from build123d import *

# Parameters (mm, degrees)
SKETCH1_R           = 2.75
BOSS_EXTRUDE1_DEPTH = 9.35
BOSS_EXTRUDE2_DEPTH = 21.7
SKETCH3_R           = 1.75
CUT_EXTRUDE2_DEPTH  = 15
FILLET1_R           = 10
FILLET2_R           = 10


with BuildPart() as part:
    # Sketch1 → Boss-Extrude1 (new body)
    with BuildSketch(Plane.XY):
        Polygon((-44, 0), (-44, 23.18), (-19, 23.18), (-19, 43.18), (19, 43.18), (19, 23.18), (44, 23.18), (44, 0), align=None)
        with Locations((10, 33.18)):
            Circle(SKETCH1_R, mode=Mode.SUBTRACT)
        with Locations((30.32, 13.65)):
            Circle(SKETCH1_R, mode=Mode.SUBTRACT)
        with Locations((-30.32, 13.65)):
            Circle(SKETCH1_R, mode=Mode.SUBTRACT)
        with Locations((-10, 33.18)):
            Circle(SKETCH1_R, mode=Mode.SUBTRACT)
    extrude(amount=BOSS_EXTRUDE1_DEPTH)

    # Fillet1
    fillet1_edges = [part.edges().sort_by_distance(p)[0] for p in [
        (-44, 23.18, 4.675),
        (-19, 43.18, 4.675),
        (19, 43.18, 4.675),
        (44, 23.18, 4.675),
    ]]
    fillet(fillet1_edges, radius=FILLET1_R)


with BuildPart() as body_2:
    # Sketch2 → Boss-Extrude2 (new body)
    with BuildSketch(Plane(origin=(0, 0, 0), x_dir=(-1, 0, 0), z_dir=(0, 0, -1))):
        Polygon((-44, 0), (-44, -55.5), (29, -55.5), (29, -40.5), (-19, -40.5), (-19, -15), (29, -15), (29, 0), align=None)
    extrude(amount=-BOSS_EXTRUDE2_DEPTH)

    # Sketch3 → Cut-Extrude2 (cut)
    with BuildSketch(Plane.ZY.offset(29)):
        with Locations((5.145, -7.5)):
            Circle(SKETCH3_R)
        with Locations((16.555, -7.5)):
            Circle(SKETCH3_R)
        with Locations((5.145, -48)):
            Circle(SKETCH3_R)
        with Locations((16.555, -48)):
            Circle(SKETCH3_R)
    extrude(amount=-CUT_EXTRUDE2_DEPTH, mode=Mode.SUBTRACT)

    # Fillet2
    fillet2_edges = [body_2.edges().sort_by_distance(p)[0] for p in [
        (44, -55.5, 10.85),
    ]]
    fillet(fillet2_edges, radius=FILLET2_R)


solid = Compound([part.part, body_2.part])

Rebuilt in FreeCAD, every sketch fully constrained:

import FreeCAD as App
import Part
import Sketcher

V = App.Vector
Q = App.Units.Quantity


def edges_at(feature, points):
    """Names of the edges that pass closest to the given points."""
    edges = feature.Shape.Edges
    near = lambda p: min(range(len(edges)), key=lambda i: edges[i].distToShape(Part.Vertex(*p))[0])
    return sorted({f"Edge{near(p) + 1}" for p in points})


def add_polygon(sketch, points):
    """Adds a closed chain of lines whose ends are joined by coincident constraints."""
    first, n = sketch.GeometryCount, len(points)
    for a, b in zip(points, points[1:] + points[:1]):
        sketch.addGeometry(Part.LineSegment(App.Vector(*a, 0), App.Vector(*b, 0)), False)
    for i in range(n):
        sketch.addConstraint(Sketcher.Constraint("Coincident", first + i, 2, first + (i + 1) % n, 1))

doc = App.newDocument("Part")
body = doc.addObject("PartDesign::Body", "Body")

# Sketch on XY plane
sketch1 = doc.addObject("Sketcher::SketchObject", "Sketch")
body.addObject(sketch1)
sketch1.AttachmentSupport = (doc.XY_Plane, [""])
sketch1.MapMode = "FlatFace"
add_polygon(sketch1, [(-44, 23.18), (-44, 0), (44, 0), (44, 23.18), (19, 23.18), (19, 43.18), (-19, 43.18), (-19, 23.18)])  # lines 0-7
sketch1.addGeometry(Part.Circle(V(30.32, 13.65, 0), V(0, 0, 1), 2.75), False)  # 8
sketch1.addGeometry(Part.Circle(V(-30.32, 13.65, 0), V(0, 0, 1), 2.75), False)  # 9
sketch1.addGeometry(Part.Circle(V(10, 33.18, 0), V(0, 0, 1), 2.75), False)  # 10
sketch1.addGeometry(Part.Circle(V(-10, 33.18, 0), V(0, 0, 1), 2.75), False)  # 11
sketch1.addConstraint([
    Sketcher.Constraint("Vertical", 0),
    Sketcher.Constraint("Horizontal", 1),
    Sketcher.Constraint("Vertical", 2),
    Sketcher.Constraint("Horizontal", 3),
    Sketcher.Constraint("Vertical", 4),
    Sketcher.Constraint("Horizontal", 5),
    Sketcher.Constraint("Vertical", 6),
    Sketcher.Constraint("Horizontal", 7),
    Sketcher.Constraint("Equal", 8, 9),
    Sketcher.Constraint("Equal", 9, 10),
    Sketcher.Constraint("Equal", 10, 11),
    Sketcher.Constraint("Symmetric", 0, 2, 1, 2, -1, 1),
    Sketcher.Constraint("Symmetric", 8, 3, 9, 3, -2),
    Sketcher.Constraint("Symmetric", 10, 3, 11, 3, -2),
    Sketcher.Constraint("Symmetric", 3, 2, 6, 2, -2),
    Sketcher.Constraint("Diameter", 8, Q("5.5 mm")),
    Sketcher.Constraint("DistanceX", 1, 1, 1, 2, Q("88 mm")),
    Sketcher.Constraint("DistanceX", 3, 2, 3, 1, Q("25 mm")),
    Sketcher.Constraint("DistanceY", 4, 1, 4, 2, Q("20 mm")),
    Sketcher.Constraint("DistanceX", -1, 1, 10, 3, Q("10 mm")),
    Sketcher.Constraint("DistanceY", 2, 2, 10, 3, Q("10 mm")),
    Sketcher.Constraint("DistanceY", 0, 2, 0, 1, Q("23.18 mm")),
    Sketcher.Constraint("DistanceX", -1, 1, 8, 3, Q("30.32 mm")),
    Sketcher.Constraint("DistanceY", -1, 1, 8, 3, Q("13.65 mm")),
])
pad1 = doc.addObject("PartDesign::Pad", "Pad")
body.addObject(pad1)
pad1.Profile = sketch1
pad1.Length = 9.35
doc.recompute()

fillet = doc.addObject("PartDesign::Fillet", "Fillet")
body.addObject(fillet)
fillet.Base = (pad1, edges_at(pad1, [
    (-44, 23.18, 4.675),
    (-19, 43.18, 4.675),
    (19, 43.18, 4.675),
    (44, 23.18, 4.675),
]))
fillet.Radius = 10
body2 = doc.addObject("PartDesign::Body", "Body001")

# Sketch on XY plane
sketch2 = doc.addObject("Sketcher::SketchObject", "Sketch001")
body2.addObject(sketch2)
sketch2.AttachmentSupport = (doc.getObject("XY_Plane001"), [""])
sketch2.MapMode = "FlatFace"
add_polygon(sketch2, [(44, 0), (44, -55.5), (-29, -55.5), (-29, -40.5), (19, -40.5), (19, -15), (-29, -15), (-29, 0)])  # lines 0-7
sketch2.addConstraint([
    Sketcher.Constraint("Vertical", 0),
    Sketcher.Constraint("Horizontal", 1),
    Sketcher.Constraint("Vertical", 2),
    Sketcher.Constraint("Horizontal", 3),
    Sketcher.Constraint("Vertical", 4),
    Sketcher.Constraint("Horizontal", 5),
    Sketcher.Constraint("Vertical", 6),
    Sketcher.Constraint("Horizontal", 7),
    Sketcher.Constraint("PointOnObject", 6, 2, -1),
    Sketcher.Constraint("Vertical", 2, 2, 5, 2),
    Sketcher.Constraint("Equal", 2, 6),
    Sketcher.Constraint("DistanceX", 1, 2, 1, 1, Q("73 mm")),
    Sketcher.Constraint("DistanceX", 3, 1, 3, 2, Q("48 mm")),
    Sketcher.Constraint("DistanceY", 2, 1, 2, 2, Q("15 mm")),
    Sketcher.Constraint("DistanceY", 0, 2, 0, 1, Q("55.5 mm")),
    Sketcher.Constraint("DistanceX", -1, 1, 0, 2, Q("44 mm")),
])
pad2 = doc.addObject("PartDesign::Pad", "Pad001")
body2.addObject(pad2)
pad2.Profile = sketch2
pad2.Length = 21.7

# Sketch on YZ plane
sketch3 = doc.addObject("Sketcher::SketchObject", "Sketch002")
body2.addObject(sketch3)
sketch3.AttachmentSupport = (doc.getObject("YZ_Plane001"), [""])
sketch3.MapMode = "FlatFace"
sketch3.AttachmentOffset = App.Placement(V(0, 0, -29), App.Rotation())
sketch3.addGeometry([
    Part.Circle(V(-7.5, 5.145, 0), V(0, 0, 1), 1.75),
    Part.Circle(V(-7.5, 16.555, 0), V(0, 0, 1), 1.75),
    Part.Circle(V(-48, 5.145, 0), V(0, 0, 1), 1.75),
    Part.Circle(V(-48, 16.555, 0), V(0, 0, 1), 1.75),
], False)
sketch3.addConstraint([
    Sketcher.Constraint("Equal", 0, 1),
    Sketcher.Constraint("Equal", 1, 2),
    Sketcher.Constraint("Equal", 2, 3),
    Sketcher.Constraint("Horizontal", 0, 3, 2, 3),
    Sketcher.Constraint("Horizontal", 1, 3, 3, 3),
    Sketcher.Constraint("Vertical", 0, 3, 1, 3),
    Sketcher.Constraint("Vertical", 2, 3, 3, 3),
    Sketcher.Constraint("Diameter", 0, Q("3.5 mm")),
    Sketcher.Constraint("DistanceX", 2, 3, -1, 1, Q("48 mm")),
    Sketcher.Constraint("DistanceX", 0, 3, -1, 1, Q("7.5 mm")),
    Sketcher.Constraint("DistanceY", 0, 3, 1, 3, Q("11.41 mm")),
    Sketcher.Constraint("DistanceY", -1, 1, 0, 3, Q("5.145 mm")),
])
pocket1 = doc.addObject("PartDesign::Pocket", "Pocket")
body2.addObject(pocket1)
pocket1.Profile = sketch3
pocket1.Length = 15
pocket1.Reversed = True
doc.recompute()

fillet2 = doc.addObject("PartDesign::Fillet", "Fillet001")
body2.addObject(fillet2)
fillet2.Base = (pocket1, edges_at(pocket1, [(44, -55.5, 10.85)]))
fillet2.Radius = 10

doc.recompute()
